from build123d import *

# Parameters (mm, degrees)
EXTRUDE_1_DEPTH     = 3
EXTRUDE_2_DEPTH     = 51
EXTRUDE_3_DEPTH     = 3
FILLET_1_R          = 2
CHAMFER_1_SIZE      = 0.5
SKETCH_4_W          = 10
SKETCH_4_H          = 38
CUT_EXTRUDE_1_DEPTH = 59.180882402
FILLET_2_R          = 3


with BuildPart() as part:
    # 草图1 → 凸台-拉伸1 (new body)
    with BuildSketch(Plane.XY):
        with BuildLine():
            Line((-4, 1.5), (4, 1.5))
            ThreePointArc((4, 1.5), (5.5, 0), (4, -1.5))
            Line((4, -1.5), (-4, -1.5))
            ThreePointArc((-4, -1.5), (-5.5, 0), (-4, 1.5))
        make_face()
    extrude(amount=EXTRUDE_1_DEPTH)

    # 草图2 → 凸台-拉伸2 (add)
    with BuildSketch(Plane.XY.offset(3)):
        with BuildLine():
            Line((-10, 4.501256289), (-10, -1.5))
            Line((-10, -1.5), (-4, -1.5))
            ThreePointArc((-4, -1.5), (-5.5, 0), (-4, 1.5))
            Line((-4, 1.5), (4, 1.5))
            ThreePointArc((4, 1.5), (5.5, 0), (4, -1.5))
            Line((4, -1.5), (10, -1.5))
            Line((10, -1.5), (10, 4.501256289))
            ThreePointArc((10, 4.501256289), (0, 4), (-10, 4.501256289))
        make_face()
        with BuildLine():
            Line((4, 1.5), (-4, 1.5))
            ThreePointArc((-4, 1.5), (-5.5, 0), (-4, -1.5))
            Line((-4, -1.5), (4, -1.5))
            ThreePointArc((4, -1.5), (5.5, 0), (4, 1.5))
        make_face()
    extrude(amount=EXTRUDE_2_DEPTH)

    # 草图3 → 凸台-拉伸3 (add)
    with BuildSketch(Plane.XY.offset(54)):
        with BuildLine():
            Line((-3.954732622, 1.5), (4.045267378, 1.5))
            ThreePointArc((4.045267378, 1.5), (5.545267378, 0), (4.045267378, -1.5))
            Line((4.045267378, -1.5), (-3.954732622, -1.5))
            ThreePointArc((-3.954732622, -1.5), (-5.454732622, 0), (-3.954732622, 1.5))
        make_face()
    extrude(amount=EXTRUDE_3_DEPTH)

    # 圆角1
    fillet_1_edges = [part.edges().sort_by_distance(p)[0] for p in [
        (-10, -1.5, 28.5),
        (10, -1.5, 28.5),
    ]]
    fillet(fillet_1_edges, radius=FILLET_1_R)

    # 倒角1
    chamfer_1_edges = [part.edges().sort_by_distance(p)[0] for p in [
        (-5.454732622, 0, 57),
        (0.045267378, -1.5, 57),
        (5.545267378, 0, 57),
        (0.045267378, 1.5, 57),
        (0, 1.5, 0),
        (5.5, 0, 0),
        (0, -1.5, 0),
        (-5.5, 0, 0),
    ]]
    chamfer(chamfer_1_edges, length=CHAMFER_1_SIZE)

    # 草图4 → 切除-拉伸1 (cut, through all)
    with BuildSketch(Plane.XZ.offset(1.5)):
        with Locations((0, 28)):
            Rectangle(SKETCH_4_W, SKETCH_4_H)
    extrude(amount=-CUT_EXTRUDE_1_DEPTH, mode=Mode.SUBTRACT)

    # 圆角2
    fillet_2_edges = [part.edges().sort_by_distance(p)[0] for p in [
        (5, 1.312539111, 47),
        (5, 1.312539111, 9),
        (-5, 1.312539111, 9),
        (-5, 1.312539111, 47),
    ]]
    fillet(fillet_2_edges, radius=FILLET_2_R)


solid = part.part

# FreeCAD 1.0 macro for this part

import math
import FreeCAD as App
import Part
import Sketcher
from FreeCAD import Vector
Q = App.Units.Quantity


def edges_at(feature, points):
    """Names of the edges that pass closest to the given points."""
    edges = feature.Shape.Edges
    near = lambda p: min(range(len(edges)), key=lambda i: edges[i].distToShape(Part.Vertex(*p))[0])
    return sorted({f"Edge{near(p) + 1}" for p in points})


def add_polygon(sketch, points):
    """Adds a closed chain of lines whose ends are joined by coincident constraints."""
    first, n = sketch.GeometryCount, len(points)
    for a, b in zip(points, points[1:] + points[:1]):
        sketch.addGeometry(Part.LineSegment(App.Vector(*a, 0), App.Vector(*b, 0)), False)
    for i in range(n):
        sketch.addConstraint(Sketcher.Constraint("Coincident", first + i, 2, first + (i + 1) % n, 1))

doc = App.newDocument("Part")
body = doc.addObject("PartDesign::Body", "Body")

sketch1 = body.newObject("Sketcher::SketchObject", "Sketch")
sketch1.AttachmentSupport = (doc.getObject("XY_Plane"), [""])
sketch1.MapMode = "FlatFace"
sketch1.addGeometry(Part.LineSegment(Vector(4, 1.5, 0), Vector(-4, 1.5, 0)), False)
sketch1.addGeometry(Part.ArcOfCircle(Part.Circle(Vector(-4, 0, 0), Vector(0, 0, 1), 1.5), math.radians(90), math.radians(270)), False)
sketch1.addGeometry(Part.LineSegment(Vector(-4, -1.5, 0), Vector(4, -1.5, 0)), False)
sketch1.addGeometry(Part.ArcOfCircle(Part.Circle(Vector(4, 0, 0), Vector(0, 0, 1), 1.5), math.radians(-90), math.radians(90)), False)
sketch1.addConstraint(Sketcher.Constraint("Tangent", 0, 2, 1, 1))
sketch1.addConstraint(Sketcher.Constraint("Tangent", 1, 2, 2, 1))
sketch1.addConstraint(Sketcher.Constraint("Tangent", 2, 2, 3, 1))
sketch1.addConstraint(Sketcher.Constraint("Tangent", 3, 2, 0, 1))
sketch1.addConstraint(Sketcher.Constraint("Horizontal", 0))
sketch1.addConstraint(Sketcher.Constraint("Horizontal", 2))
sketch1.addConstraint(Sketcher.Constraint("Symmetric", 1, 3, 3, 3, -1, 1))
sketch1.addConstraint(Sketcher.Constraint("Radius", 1, Q("1.5 mm")))
sketch1.addConstraint(Sketcher.Constraint("DistanceX", 0, 2, 0, 1, Q("8 mm")))
pad1 = body.newObject("PartDesign::Pad", "Pad")
pad1.Profile = sketch1
pad1.Length = 3

sketch2 = body.newObject("Sketcher::SketchObject", "Sketch001")
sketch2.AttachmentSupport = (doc.getObject("XY_Plane"), [""])
sketch2.MapMode = "FlatFace"
sketch2.AttachmentOffset = App.Placement(Vector(0, 0, 3), App.Rotation())
sketch2.addGeometry(Part.LineSegment(Vector(-10, 4.501256, 0), Vector(-10, -1.5, 0)), False)
sketch2.addGeometry(Part.LineSegment(Vector(-10, -1.5, 0), Vector(10, -1.5, 0)), False)
sketch2.addGeometry(Part.LineSegment(Vector(10, -1.5, 0), Vector(10, 4.501256, 0)), False)
sketch2.addGeometry(Part.ArcOfCircle(Part.Circle(Vector(0, 104, 0), Vector(0, 0, 1), 100), math.radians(-95.73917), math.radians(-84.26083)), False)
sketch2.addConstraint(Sketcher.Constraint("Coincident", 0, 2, 1, 1))
sketch2.addConstraint(Sketcher.Constraint("Coincident", 1, 2, 2, 1))
sketch2.addConstraint(Sketcher.Constraint("Coincident", 2, 2, 3, 2))
sketch2.addConstraint(Sketcher.Constraint("Coincident", 3, 1, 0, 1))
sketch2.addConstraint(Sketcher.Constraint("Vertical", 0))
sketch2.addConstraint(Sketcher.Constraint("Horizontal", 1))
sketch2.addConstraint(Sketcher.Constraint("Vertical", 2))
sketch2.addConstraint(Sketcher.Constraint("Symmetric", 2, 2, 3, 1, -2))
sketch2.addConstraint(Sketcher.Constraint("Radius", 3, Q("100 mm")))
sketch2.addConstraint(Sketcher.Constraint("DistanceX", 1, 1, 1, 2, Q("20 mm")))
sketch2.addConstraint(Sketcher.Constraint("DistanceY", -1, 1, 3, 3, Q("104 mm")))
sketch2.addConstraint(Sketcher.Constraint("DistanceY", 0, 2, -1, 1, Q("1.5 mm")))
pad2 = body.newObject("PartDesign::Pad", "Pad001")
pad2.Profile = sketch2
pad2.Length = 51

sketch3 = body.newObject("Sketcher::SketchObject", "Sketch002")
sketch3.AttachmentSupport = (doc.getObject("XY_Plane"), [""])
sketch3.MapMode = "FlatFace"
sketch3.AttachmentOffset = App.Placement(Vector(0, 0, 54), App.Rotation())
sketch3.addGeometry(Part.LineSegment(Vector(4.045267, 1.5, 0), Vector(-3.954733, 1.5, 0)), False)
sketch3.addGeometry(Part.ArcOfCircle(Part.Circle(Vector(-3.954733, 0, 0), Vector(0, 0, 1), 1.5), math.radians(90), math.radians(270)), False)
sketch3.addGeometry(Part.LineSegment(Vector(-3.954733, -1.5, 0), Vector(4.045267, -1.5, 0)), False)
sketch3.addGeometry(Part.ArcOfCircle(Part.Circle(Vector(4.045267, 0, 0), Vector(0, 0, 1), 1.5), math.radians(-90), math.radians(90)), False)
sketch3.addConstraint(Sketcher.Constraint("Tangent", 0, 2, 1, 1))
sketch3.addConstraint(Sketcher.Constraint("Tangent", 1, 2, 2, 1))
sketch3.addConstraint(Sketcher.Constraint("Tangent", 2, 2, 3, 1))
sketch3.addConstraint(Sketcher.Constraint("Tangent", 3, 2, 0, 1))
sketch3.addConstraint(Sketcher.Constraint("Horizontal", 0))
sketch3.addConstraint(Sketcher.Constraint("Horizontal", 2))
sketch3.addConstraint(Sketcher.Constraint("PointOnObject", 1, 3, -1))
sketch3.addConstraint(Sketcher.Constraint("Radius", 1, Q("1.5 mm")))
sketch3.addConstraint(Sketcher.Constraint("DistanceX", 0, 2, 0, 1, Q("8 mm")))
sketch3.addConstraint(Sketcher.Constraint("DistanceX", 1, 3, -1, 1, Q("3.954733 mm")))
pad3 = body.newObject("PartDesign::Pad", "Pad002")
pad3.Profile = sketch3
pad3.Length = 3
doc.recompute()

fillet = body.newObject("PartDesign::Fillet", "Fillet")
fillet.Base = (pad3, edges_at(pad3, [(-10, -1.5, 28.5), (10, -1.5, 28.5)]))
fillet.Radius = 2
doc.recompute()

chamfer = body.newObject("PartDesign::Chamfer", "Chamfer")
chamfer.Base = (fillet, edges_at(fillet, [
    (-5.455, 0, 57),
    (0.045, -1.5, 57),
    (5.545, 0, 57),
    (0.045, 1.5, 57),
    (0, 1.5, 0),
    (5.5, 0, 0),
    (0, -1.5, 0),
    (-5.5, 0, 0),
]))
chamfer.Size = 0.5

sketch4 = body.newObject("Sketcher::SketchObject", "Sketch003")
sketch4.AttachmentSupport = (doc.getObject("XZ_Plane"), [""])
sketch4.MapMode = "FlatFace"
sketch4.AttachmentOffset = App.Placement(Vector(0, 0, 1.5), App.Rotation())
add_polygon(sketch4, [(-5, 47), (-5, 9), (5, 9), (5, 47)])
sketch4.addConstraint(Sketcher.Constraint("Vertical", 0))
sketch4.addConstraint(Sketcher.Constraint("Horizontal", 1))
sketch4.addConstraint(Sketcher.Constraint("Vertical", 2))
sketch4.addConstraint(Sketcher.Constraint("Horizontal", 3))
sketch4.addConstraint(Sketcher.Constraint("DistanceX", 1, 1, 1, 2, Q("10 mm")))
sketch4.addConstraint(Sketcher.Constraint("DistanceY", 0, 2, 0, 1, Q("38 mm")))
sketch4.addConstraint(Sketcher.Constraint("DistanceX", 0, 2, -1, 1, Q("5 mm")))
sketch4.addConstraint(Sketcher.Constraint("DistanceY", -1, 1, 0, 2, Q("9 mm")))
pocket1 = body.newObject("PartDesign::Pocket", "Pocket")
pocket1.Profile = sketch4
pocket1.Type = "ThroughAll"
doc.recompute()

fillet2 = body.newObject("PartDesign::Fillet", "Fillet001")
fillet2.Base = (pocket1, edges_at(pocket1, [
    (5, 1.313, 47),
    (5, 1.313, 9),
    (-5, 1.313, 9),
    (-5, 1.313, 47),
]))
fillet2.Radius = 3

doc.recompute()
